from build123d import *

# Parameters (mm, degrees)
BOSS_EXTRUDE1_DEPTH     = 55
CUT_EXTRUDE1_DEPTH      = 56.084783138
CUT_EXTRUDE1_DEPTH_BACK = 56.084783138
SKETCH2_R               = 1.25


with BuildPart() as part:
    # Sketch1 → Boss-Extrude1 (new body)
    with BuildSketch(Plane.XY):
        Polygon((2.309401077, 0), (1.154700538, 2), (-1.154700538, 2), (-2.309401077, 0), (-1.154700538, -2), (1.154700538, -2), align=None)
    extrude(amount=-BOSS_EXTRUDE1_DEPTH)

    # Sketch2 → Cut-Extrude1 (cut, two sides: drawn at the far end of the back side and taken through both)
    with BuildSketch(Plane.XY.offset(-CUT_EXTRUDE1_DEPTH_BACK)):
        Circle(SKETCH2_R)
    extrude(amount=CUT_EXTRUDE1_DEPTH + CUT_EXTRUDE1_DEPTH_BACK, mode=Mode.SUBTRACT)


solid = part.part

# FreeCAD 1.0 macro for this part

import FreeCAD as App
import Part
import Sketcher
from FreeCAD import Vector
Q = App.Units.Quantity


def add_polygon(sketch, points):
    """Adds a closed chain of lines whose ends are joined by coincident constraints."""
    first, n = sketch.GeometryCount, len(points)
    for a, b in zip(points, points[1:] + points[:1]):
        sketch.addGeometry(Part.LineSegment(App.Vector(*a, 0), App.Vector(*b, 0)), False)
    for i in range(n):
        sketch.addConstraint(Sketcher.Constraint("Coincident", first + i, 2, first + (i + 1) % n, 1))

doc = App.newDocument("Part")
params = doc.addObject("Spreadsheet::Sheet", "Params")
for row, (alias, value) in enumerate([
    ("pad1_length", "55 mm"),
    ("sketch2_diameter", "2.5 mm"),
], start=1):
    params.set(f"A{row}", alias)
    params.set(f"B{row}", "=" + value)
    params.setAlias(f"B{row}", alias)

body = doc.addObject("PartDesign::Body", "Body")

sketch1 = body.newObject("Sketcher::SketchObject", "Sketch")
sketch1.AttachmentSupport = (doc.getObject("XY_Plane"), [""])
sketch1.MapMode = "FlatFace"
add_polygon(sketch1, [(2.3, 0), (1.2, 2), (-1.2, 2), (-2.3, 0), (-1.2, -2), (1.2, -2)])
sketch1.addConstraint(Sketcher.Constraint("Horizontal", 1))
sketch1.addConstraint(Sketcher.Constraint("Horizontal", 4))
sketch1.addConstraint(Sketcher.Constraint("Symmetric", 0, 2, 3, 2, -1, 1))
sketch1.addConstraint(Sketcher.Constraint("Symmetric", 2, 2, 5, 2, -1, 1))
sketch1.addConstraint(Sketcher.Constraint("PointOnObject", 2, 2, -1))
sketch1.addConstraint(Sketcher.Constraint("Parallel", 2, 5))
sketch1.addConstraint(Sketcher.Constraint("Vertical", 1, 2, 3, 2))
sketch1.addConstraint(Sketcher.Constraint("Angle", 0, Q("120 deg")))
sketch1.addConstraint(Sketcher.Constraint("DistanceY", -1, 1, 0, 2, Q("2 mm")))
sketch1.addConstraint(Sketcher.Constraint("DistanceX", 1, 2, 1, 1, Q("2.309401 mm")))
pad1 = body.newObject("PartDesign::Pad", "Pad")
pad1.Profile = sketch1
pad1.setExpression("Length", "Params.pad1_length")
pad1.Reversed = True

sketch2 = body.newObject("Sketcher::SketchObject", "Sketch001")
sketch2.AttachmentSupport = (doc.getObject("XY_Plane"), [""])
sketch2.MapMode = "FlatFace"
sketch2.addGeometry(Part.Circle(Vector(0, 0, 0), Vector(0, 0, 1), 1.2), False)
sketch2.addConstraint(Sketcher.Constraint("Coincident", 0, 3, -1, 1))
sketch2.addConstraint(Sketcher.Constraint("Diameter", 0, Q("2.5 mm")))
sketch2.setExpression("Constraints[1]", "Params.sketch2_diameter")
pocket1 = body.newObject("PartDesign::Pocket", "Pocket")
pocket1.Profile = sketch2
pocket1.Type = "ThroughAll"
pocket1.Midplane = True

doc.recompute()
